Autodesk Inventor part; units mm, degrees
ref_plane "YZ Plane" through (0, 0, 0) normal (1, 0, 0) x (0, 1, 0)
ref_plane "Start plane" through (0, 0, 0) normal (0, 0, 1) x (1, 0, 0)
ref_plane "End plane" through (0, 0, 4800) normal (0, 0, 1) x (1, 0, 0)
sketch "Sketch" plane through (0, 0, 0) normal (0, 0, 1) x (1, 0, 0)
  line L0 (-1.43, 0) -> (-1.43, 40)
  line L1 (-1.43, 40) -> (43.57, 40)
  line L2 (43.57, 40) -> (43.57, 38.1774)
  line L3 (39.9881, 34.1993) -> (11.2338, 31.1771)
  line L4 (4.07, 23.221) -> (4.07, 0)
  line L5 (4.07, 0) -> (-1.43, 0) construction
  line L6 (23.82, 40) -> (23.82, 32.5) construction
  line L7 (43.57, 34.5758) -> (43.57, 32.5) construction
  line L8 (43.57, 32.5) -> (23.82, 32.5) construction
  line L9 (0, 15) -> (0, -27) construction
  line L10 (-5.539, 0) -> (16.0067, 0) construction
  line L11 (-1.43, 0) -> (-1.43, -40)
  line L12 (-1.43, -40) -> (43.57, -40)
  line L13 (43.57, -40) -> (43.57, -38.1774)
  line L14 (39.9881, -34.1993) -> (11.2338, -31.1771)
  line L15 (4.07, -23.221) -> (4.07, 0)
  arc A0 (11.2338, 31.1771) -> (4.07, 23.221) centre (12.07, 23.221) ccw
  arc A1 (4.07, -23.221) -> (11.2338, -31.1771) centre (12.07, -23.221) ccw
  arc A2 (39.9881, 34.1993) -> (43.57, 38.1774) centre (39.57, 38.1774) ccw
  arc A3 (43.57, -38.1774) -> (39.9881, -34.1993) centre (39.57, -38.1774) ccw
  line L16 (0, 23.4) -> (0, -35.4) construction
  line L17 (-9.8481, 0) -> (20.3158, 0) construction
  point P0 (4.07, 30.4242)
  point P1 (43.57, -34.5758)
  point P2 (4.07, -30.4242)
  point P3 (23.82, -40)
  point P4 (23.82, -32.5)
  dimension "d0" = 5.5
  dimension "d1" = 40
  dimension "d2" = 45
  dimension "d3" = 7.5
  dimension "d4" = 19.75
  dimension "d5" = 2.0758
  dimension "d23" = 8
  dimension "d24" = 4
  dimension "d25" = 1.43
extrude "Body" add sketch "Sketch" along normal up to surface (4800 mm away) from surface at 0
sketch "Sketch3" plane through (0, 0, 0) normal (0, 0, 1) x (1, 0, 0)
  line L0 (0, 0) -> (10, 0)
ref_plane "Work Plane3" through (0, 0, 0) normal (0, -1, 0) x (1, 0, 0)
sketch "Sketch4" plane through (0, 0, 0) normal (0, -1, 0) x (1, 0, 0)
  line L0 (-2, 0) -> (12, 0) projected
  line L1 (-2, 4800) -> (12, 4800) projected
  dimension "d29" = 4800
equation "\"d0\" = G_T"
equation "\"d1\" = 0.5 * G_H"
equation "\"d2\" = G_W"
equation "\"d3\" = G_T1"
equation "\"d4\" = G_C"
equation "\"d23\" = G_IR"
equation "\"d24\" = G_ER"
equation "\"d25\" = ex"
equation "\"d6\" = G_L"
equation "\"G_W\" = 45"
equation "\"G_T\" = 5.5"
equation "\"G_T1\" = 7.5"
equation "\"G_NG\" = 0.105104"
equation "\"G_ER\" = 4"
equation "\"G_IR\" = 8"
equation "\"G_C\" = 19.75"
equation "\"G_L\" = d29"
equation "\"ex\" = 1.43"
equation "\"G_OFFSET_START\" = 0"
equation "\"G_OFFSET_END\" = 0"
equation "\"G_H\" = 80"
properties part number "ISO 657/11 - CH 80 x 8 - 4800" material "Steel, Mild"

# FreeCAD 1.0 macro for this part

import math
import FreeCAD as App
import Part
import Sketcher
Q = App.Units.Quantity

doc = App.newDocument("Part")
body = doc.addObject("PartDesign::Body", "Body")

sketch1 = body.newObject("Sketcher::SketchObject", "Sketch")
sketch1.AttachmentSupport = (doc.getObject("XY_Plane"), [""])
sketch1.MapMode = "FlatFace"
sketch1.addGeometry([
    Part.LineSegment(App.Vector(-1.4, 40, 0), App.Vector(-1.4, -40, 0)),
    Part.LineSegment(App.Vector(-1.4, -40, 0), App.Vector(43.6, -40, 0)),
    Part.LineSegment(App.Vector(43.6, -40, 0), App.Vector(43.6, -38.2, 0)),
    Part.ArcOfCircle(Part.Circle(App.Vector(39.6, -38.2, 0), App.Vector(0, 0, 1), 4), math.radians(0), math.radians(84)),
    Part.LineSegment(App.Vector(40, -34.2, 0), App.Vector(11.2, -31.2, 0)),
    Part.ArcOfCircle(Part.Circle(App.Vector(12.1, -23.2, 0), App.Vector(0, 0, 1), 8), math.radians(180), math.radians(264)),
    Part.LineSegment(App.Vector(4.1, -23.2, 0), App.Vector(4.1, 23.2, 0)),
    Part.ArcOfCircle(Part.Circle(App.Vector(12.1, 23.2, 0), App.Vector(0, 0, 1), 8), math.radians(96), math.radians(180)),
    Part.LineSegment(App.Vector(11.2, 31.2, 0), App.Vector(40, 34.2, 0)),
    Part.ArcOfCircle(Part.Circle(App.Vector(39.6, 38.2, 0), App.Vector(0, 0, 1), 4), math.radians(-84), math.radians(0)),
    Part.LineSegment(App.Vector(43.6, 38.2, 0), App.Vector(43.6, 40, 0)),
    Part.LineSegment(App.Vector(43.6, 40, 0), App.Vector(-1.4, 40, 0)),
], False)
sketch1.addConstraint([
    Sketcher.Constraint("Coincident", 0, 2, 1, 1),
    Sketcher.Constraint("Coincident", 1, 2, 2, 1),
    Sketcher.Constraint("Tangent", 2, 2, 3, 1),
    Sketcher.Constraint("Tangent", 3, 2, 4, 1),
    Sketcher.Constraint("Tangent", 4, 2, 5, 2),
    Sketcher.Constraint("Tangent", 5, 1, 6, 1),
    Sketcher.Constraint("Tangent", 6, 2, 7, 2),
    Sketcher.Constraint("Tangent", 7, 1, 8, 1),
    Sketcher.Constraint("Tangent", 8, 2, 9, 1),
    Sketcher.Constraint("Tangent", 9, 2, 10, 1),
    Sketcher.Constraint("Coincident", 10, 2, 11, 1),
    Sketcher.Constraint("Coincident", 11, 2, 0, 1),
    Sketcher.Constraint("Vertical", 0),
    Sketcher.Constraint("Horizontal", 1),
    Sketcher.Constraint("Vertical", 2),
    Sketcher.Constraint("Vertical", 6),
    Sketcher.Constraint("Vertical", 10),
    Sketcher.Constraint("Horizontal", 11),
    Sketcher.Constraint("Equal", 5, 7),
    Sketcher.Constraint("Equal", 3, 9),
    Sketcher.Constraint("Symmetric", 3, 3, 9, 3, -1),
    Sketcher.Constraint("Vertical", 4, 2, 7, 1),
    Sketcher.Constraint("Equal", 2, 10),
    Sketcher.Constraint("Radius", 3, 4.0),
    Sketcher.Constraint("Radius", 5, 8.0),
    Sketcher.Constraint("DistanceX", 1, 1, 1, 2, 45.0),
    Sketcher.Constraint("DistanceY", 0, 2, -1, 1, 40.0),
    Sketcher.Constraint("DistanceX", 0, 2, 5, 1, 5.5),
    Sketcher.Constraint("DistanceX", 0, 2, -1, 1, 1.43),
    Sketcher.Constraint("Angle", 4, Q("174 deg")),
    Sketcher.Constraint("DistanceY", 6, 1, 6, 2, 46.442),
])
pad1 = body.newObject("PartDesign::Pad", "Pad")
pad1.Profile = sketch1
pad1.Length = 4800

doc.recompute()
